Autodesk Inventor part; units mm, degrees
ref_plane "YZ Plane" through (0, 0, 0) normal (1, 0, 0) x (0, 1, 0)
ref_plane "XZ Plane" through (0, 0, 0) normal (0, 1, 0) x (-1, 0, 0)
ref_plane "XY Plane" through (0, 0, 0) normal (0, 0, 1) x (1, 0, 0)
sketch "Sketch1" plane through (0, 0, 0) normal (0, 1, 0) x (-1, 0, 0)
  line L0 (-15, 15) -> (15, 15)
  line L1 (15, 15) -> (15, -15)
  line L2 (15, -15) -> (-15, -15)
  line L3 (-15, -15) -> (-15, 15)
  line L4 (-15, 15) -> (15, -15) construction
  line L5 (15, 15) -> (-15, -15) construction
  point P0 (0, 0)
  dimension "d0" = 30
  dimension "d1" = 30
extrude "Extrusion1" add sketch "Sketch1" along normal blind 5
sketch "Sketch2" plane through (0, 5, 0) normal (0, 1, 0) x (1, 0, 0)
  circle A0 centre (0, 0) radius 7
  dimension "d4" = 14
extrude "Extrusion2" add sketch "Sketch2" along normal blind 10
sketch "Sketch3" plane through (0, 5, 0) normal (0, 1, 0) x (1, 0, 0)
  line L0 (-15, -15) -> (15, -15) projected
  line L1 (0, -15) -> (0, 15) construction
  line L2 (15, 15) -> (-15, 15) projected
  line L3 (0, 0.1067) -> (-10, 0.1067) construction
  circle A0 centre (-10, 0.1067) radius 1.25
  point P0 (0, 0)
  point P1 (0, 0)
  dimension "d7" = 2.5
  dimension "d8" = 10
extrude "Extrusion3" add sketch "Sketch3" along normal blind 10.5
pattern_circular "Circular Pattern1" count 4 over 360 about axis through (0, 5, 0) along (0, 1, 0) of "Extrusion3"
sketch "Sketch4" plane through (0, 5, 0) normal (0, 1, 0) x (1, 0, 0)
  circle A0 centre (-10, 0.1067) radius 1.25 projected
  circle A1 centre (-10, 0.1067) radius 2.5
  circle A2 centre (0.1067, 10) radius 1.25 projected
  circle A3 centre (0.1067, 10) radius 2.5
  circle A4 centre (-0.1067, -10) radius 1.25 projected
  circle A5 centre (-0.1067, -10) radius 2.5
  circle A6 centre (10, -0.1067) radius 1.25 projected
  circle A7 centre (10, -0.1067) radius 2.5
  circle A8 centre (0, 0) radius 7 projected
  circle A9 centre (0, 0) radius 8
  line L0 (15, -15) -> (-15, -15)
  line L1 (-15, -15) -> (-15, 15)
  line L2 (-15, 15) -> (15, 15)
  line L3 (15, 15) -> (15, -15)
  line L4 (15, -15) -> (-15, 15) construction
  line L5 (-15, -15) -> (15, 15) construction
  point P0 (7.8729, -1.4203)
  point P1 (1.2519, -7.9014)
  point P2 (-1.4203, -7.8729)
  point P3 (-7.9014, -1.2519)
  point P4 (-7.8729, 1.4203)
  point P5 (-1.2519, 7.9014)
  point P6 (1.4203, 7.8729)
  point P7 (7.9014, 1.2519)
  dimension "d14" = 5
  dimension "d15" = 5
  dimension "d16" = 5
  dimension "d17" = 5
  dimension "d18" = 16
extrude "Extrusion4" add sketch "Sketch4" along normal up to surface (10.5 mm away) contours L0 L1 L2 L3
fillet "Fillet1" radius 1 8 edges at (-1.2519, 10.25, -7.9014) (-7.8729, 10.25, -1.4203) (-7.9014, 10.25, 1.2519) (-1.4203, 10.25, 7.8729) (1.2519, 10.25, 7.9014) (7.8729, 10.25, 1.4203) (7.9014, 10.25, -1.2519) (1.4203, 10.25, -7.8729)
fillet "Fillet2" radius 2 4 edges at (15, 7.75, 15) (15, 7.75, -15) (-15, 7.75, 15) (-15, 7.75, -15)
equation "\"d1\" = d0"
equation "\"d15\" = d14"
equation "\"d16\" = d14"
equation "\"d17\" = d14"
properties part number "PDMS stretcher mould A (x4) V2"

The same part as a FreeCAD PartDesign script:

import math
import FreeCAD as App
import Part
import Sketcher

V = App.Vector
Q = App.Units.Quantity


def edges_at(feature, points):
    """Names of the edges that pass closest to the given points."""
    edges = feature.Shape.Edges
    near = lambda p: min(range(len(edges)), key=lambda i: edges[i].distToShape(Part.Vertex(*p))[0])
    return sorted({f"Edge{near(p) + 1}" for p in points})

doc = App.newDocument("Part")
body = doc.addObject("PartDesign::Body", "Body")

# Sketch on XZ plane
sketch1 = body.newObject("Sketcher::SketchObject", "Sketch")
sketch1.AttachmentSupport = (doc.getObject("XZ_Plane"), [""])
sketch1.MapMode = "FlatFace"
sketch1.addGeometry(Part.LineSegment(V(-15, 15, 0), V(15, 15, 0)), False)
sketch1.addGeometry(Part.LineSegment(V(15, 15, 0), V(15, -15, 0)), False)
sketch1.addGeometry(Part.LineSegment(V(15, -15, 0), V(-15, -15, 0)), False)
sketch1.addGeometry(Part.LineSegment(V(-15, -15, 0), V(-15, 15, 0)), False)
sketch1.addConstraint(Sketcher.Constraint("Coincident", 0, 2, 1, 1))
sketch1.addConstraint(Sketcher.Constraint("Coincident", 1, 2, 2, 1))
sketch1.addConstraint(Sketcher.Constraint("Coincident", 2, 2, 3, 1))
sketch1.addConstraint(Sketcher.Constraint("Coincident", 3, 2, 0, 1))
sketch1.addConstraint(Sketcher.Constraint("Horizontal", 0))
sketch1.addConstraint(Sketcher.Constraint("Vertical", 1))
sketch1.addConstraint(Sketcher.Constraint("Horizontal", 2))
sketch1.addConstraint(Sketcher.Constraint("Vertical", 3))
sketch1.addConstraint(Sketcher.Constraint("Symmetric", 0, 2, 2, 2, -1, 1))
sketch1.addConstraint(Sketcher.Constraint("Equal", 2, 1))
sketch1.addConstraint(Sketcher.Constraint("DistanceX", 0, 1, 0, 2, Q("30 mm")))
pad1 = body.newObject("PartDesign::Pad", "Pad")
pad1.Profile = sketch1
pad1.Length = 5
pad1.Reversed = True

# Sketch on XZ plane
sketch2 = body.newObject("Sketcher::SketchObject", "Sketch001")
sketch2.AttachmentSupport = (doc.getObject("XZ_Plane"), [""])
sketch2.MapMode = "FlatFace"
sketch2.AttachmentOffset = App.Placement(V(0, 0, -5), App.Rotation())
sketch2.addGeometry(Part.Circle(V(0, 0, 0), V(0, 0, 1), 7), False)
sketch2.addConstraint(Sketcher.Constraint("Coincident", 0, 3, -1, 1))
sketch2.addConstraint(Sketcher.Constraint("Diameter", 0, Q("14 mm")))
pad2 = body.newObject("PartDesign::Pad", "Pad001")
pad2.Profile = sketch2
pad2.Length = 10
pad2.Reversed = True

# Sketch on XZ plane
sketch3 = body.newObject("Sketcher::SketchObject", "Sketch002")
sketch3.AttachmentSupport = (doc.getObject("XZ_Plane"), [""])
sketch3.MapMode = "FlatFace"
sketch3.AttachmentOffset = App.Placement(V(0, 0, -5), App.Rotation())
sketch3.addGeometry(Part.Circle(V(-10, -0.1, 0), V(0, 0, 1), 1.2), False)
sketch3.addConstraint(Sketcher.Constraint("Diameter", 0, Q("2.5 mm")))
sketch3.addConstraint(Sketcher.Constraint("DistanceX", 0, 3, -1, 1, Q("10 mm")))
sketch3.addConstraint(Sketcher.Constraint("DistanceY", 0, 3, -1, 1, Q("0.1067 mm")))
pad3 = body.newObject("PartDesign::Pad", "Pad002")
pad3.Profile = sketch3
pad3.Length = 10.5
pad3.Reversed = True
doc.recompute()

polarpattern = body.newObject("PartDesign::PolarPattern", "PolarPattern")
polarpattern.Originals = [pad3]
polarpattern.Axis = (doc.getObject("Y_Axis"), [""])
polarpattern.Angle = 360
polarpattern.Occurrences = 4
body.Tip = polarpattern

# Sketch on XZ plane
sketch4 = body.newObject("Sketcher::SketchObject", "Sketch003")
sketch4.AttachmentSupport = (doc.getObject("XZ_Plane"), [""])
sketch4.MapMode = "FlatFace"
sketch4.AttachmentOffset = App.Placement(V(0, 0, -5), App.Rotation())
sketch4.addGeometry(Part.LineSegment(V(-15, 15, 0), V(15, 15, 0)), False)
sketch4.addGeometry(Part.LineSegment(V(15, 15, 0), V(15, -15, 0)), False)
sketch4.addGeometry(Part.LineSegment(V(15, -15, 0), V(-15, -15, 0)), False)
sketch4.addGeometry(Part.LineSegment(V(-15, -15, 0), V(-15, 15, 0)), False)
sketch4.addGeometry(Part.ArcOfCircle(Part.Circle(V(-10, -0.1, 0), V(0, 0, 1), 2.5), math.radians(33), math.radians(328)), False)
sketch4.addGeometry(Part.ArcOfCircle(Part.Circle(V(0, 0, 0), V(0, 0, 1), 8), math.radians(-170), math.radians(-99)), False)
sketch4.addGeometry(Part.ArcOfCircle(Part.Circle(V(0.1, -10, 0), V(0, 0, 1), 2.5), math.radians(123), math.radians(418)), False)
sketch4.addGeometry(Part.ArcOfCircle(Part.Circle(V(0, 0, 0), V(0, 0, 1), 8), math.radians(-80), math.radians(-9)), False)
sketch4.addGeometry(Part.ArcOfCircle(Part.Circle(V(10, 0.1, 0), V(0, 0, 1), 2.5), math.radians(-147), math.radians(148)), False)
sketch4.addGeometry(Part.ArcOfCircle(Part.Circle(V(0, 0, 0), V(0, 0, 1), 8), math.radians(10), math.radians(81)), False)
sketch4.addGeometry(Part.ArcOfCircle(Part.Circle(V(-0.1, 10, 0), V(0, 0, 1), 2.5), math.radians(-57), math.radians(238)), False)
sketch4.addGeometry(Part.ArcOfCircle(Part.Circle(V(0, 0, 0), V(0, 0, 1), 8), math.radians(100), math.radians(171)), False)
sketch4.addConstraint(Sketcher.Constraint("Coincident", 0, 2, 1, 1))
sketch4.addConstraint(Sketcher.Constraint("Coincident", 1, 2, 2, 1))
sketch4.addConstraint(Sketcher.Constraint("Coincident", 2, 2, 3, 1))
sketch4.addConstraint(Sketcher.Constraint("Coincident", 3, 2, 0, 1))
sketch4.addConstraint(Sketcher.Constraint("Coincident", 4, 2, 5, 1))
sketch4.addConstraint(Sketcher.Constraint("Coincident", 5, 2, 6, 1))
sketch4.addConstraint(Sketcher.Constraint("Coincident", 6, 2, 7, 1))
sketch4.addConstraint(Sketcher.Constraint("Coincident", 7, 2, 8, 1))
sketch4.addConstraint(Sketcher.Constraint("Coincident", 8, 2, 9, 1))
sketch4.addConstraint(Sketcher.Constraint("Coincident", 9, 2, 10, 1))
sketch4.addConstraint(Sketcher.Constraint("Coincident", 10, 2, 11, 1))
sketch4.addConstraint(Sketcher.Constraint("Coincident", 11, 2, 4, 1))
sketch4.addConstraint(Sketcher.Constraint("Horizontal", 0))
sketch4.addConstraint(Sketcher.Constraint("Vertical", 1))
sketch4.addConstraint(Sketcher.Constraint("Horizontal", 2))
sketch4.addConstraint(Sketcher.Constraint("Vertical", 3))
sketch4.addConstraint(Sketcher.Constraint("Coincident", 5, 3, -1, 1))
sketch4.addConstraint(Sketcher.Constraint("Coincident", 7, 3, -1, 1))
sketch4.addConstraint(Sketcher.Constraint("Coincident", 9, 3, -1, 1))
sketch4.addConstraint(Sketcher.Constraint("Coincident", 11, 3, -1, 1))
sketch4.addConstraint(Sketcher.Constraint("Equal", 4, 6))
sketch4.addConstraint(Sketcher.Constraint("Equal", 5, 7))
sketch4.addConstraint(Sketcher.Constraint("Equal", 6, 8))
sketch4.addConstraint(Sketcher.Constraint("Equal", 7, 9))
sketch4.addConstraint(Sketcher.Constraint("Equal", 8, 10))
sketch4.addConstraint(Sketcher.Constraint("Equal", 9, 11))
sketch4.addConstraint(Sketcher.Constraint("Symmetric", 4, 3, 8, 3, -1, 1))
sketch4.addConstraint(Sketcher.Constraint("Symmetric", 6, 3, 10, 3, -1, 1))
sketch4.addConstraint(Sketcher.Constraint("Symmetric", 0, 2, 2, 2, -1, 1))
sketch4.addConstraint(Sketcher.Constraint("Equal", 2, 1))
sketch4.addConstraint(Sketcher.Constraint("Radius", 5, Q("8 mm")))
sketch4.addConstraint(Sketcher.Constraint("Radius", 4, Q("2.5 mm")))
sketch4.addConstraint(Sketcher.Constraint("DistanceX", 8, 3, 0, 2, Q("5 mm")))
sketch4.addConstraint(Sketcher.Constraint("DistanceY", 10, 3, 0, 2, Q("5 mm")))
sketch4.addConstraint(Sketcher.Constraint("DistanceX", 0, 1, 0, 2, Q("30 mm")))
sketch4.addConstraint(Sketcher.Constraint("DistanceX", 4, 2, -1, 1, Q("7.873 mm")))
sketch4.addConstraint(Sketcher.Constraint("DistanceX", 5, 2, -1, 1, Q("1.252 mm")))
pad4 = body.newObject("PartDesign::Pad", "Pad003")
pad4.Profile = sketch4
pad4.Length = 10.5
pad4.Reversed = True
doc.recompute()

fillet = body.newObject("PartDesign::Fillet", "Fillet")
fillet.Base = (pad4, edges_at(pad4, [
    (-1.252, 10.25, -7.901),
    (-7.873, 10.25, -1.42),
    (-7.901, 10.25, 1.252),
    (-1.42, 10.25, 7.873),
    (1.252, 10.25, 7.901),
    (7.873, 10.25, 1.42),
    (7.901, 10.25, -1.252),
    (1.42, 10.25, -7.873),
]))
fillet.Radius = 1
doc.recompute()

fillet2 = body.newObject("PartDesign::Fillet", "Fillet001")
fillet2.Base = (fillet, edges_at(fillet, [
    (15, 7.75, 15),
    (15, 7.75, -15),
    (-15, 7.75, 15),
    (-15, 7.75, -15),
]))
fillet2.Radius = 2

doc.recompute()
